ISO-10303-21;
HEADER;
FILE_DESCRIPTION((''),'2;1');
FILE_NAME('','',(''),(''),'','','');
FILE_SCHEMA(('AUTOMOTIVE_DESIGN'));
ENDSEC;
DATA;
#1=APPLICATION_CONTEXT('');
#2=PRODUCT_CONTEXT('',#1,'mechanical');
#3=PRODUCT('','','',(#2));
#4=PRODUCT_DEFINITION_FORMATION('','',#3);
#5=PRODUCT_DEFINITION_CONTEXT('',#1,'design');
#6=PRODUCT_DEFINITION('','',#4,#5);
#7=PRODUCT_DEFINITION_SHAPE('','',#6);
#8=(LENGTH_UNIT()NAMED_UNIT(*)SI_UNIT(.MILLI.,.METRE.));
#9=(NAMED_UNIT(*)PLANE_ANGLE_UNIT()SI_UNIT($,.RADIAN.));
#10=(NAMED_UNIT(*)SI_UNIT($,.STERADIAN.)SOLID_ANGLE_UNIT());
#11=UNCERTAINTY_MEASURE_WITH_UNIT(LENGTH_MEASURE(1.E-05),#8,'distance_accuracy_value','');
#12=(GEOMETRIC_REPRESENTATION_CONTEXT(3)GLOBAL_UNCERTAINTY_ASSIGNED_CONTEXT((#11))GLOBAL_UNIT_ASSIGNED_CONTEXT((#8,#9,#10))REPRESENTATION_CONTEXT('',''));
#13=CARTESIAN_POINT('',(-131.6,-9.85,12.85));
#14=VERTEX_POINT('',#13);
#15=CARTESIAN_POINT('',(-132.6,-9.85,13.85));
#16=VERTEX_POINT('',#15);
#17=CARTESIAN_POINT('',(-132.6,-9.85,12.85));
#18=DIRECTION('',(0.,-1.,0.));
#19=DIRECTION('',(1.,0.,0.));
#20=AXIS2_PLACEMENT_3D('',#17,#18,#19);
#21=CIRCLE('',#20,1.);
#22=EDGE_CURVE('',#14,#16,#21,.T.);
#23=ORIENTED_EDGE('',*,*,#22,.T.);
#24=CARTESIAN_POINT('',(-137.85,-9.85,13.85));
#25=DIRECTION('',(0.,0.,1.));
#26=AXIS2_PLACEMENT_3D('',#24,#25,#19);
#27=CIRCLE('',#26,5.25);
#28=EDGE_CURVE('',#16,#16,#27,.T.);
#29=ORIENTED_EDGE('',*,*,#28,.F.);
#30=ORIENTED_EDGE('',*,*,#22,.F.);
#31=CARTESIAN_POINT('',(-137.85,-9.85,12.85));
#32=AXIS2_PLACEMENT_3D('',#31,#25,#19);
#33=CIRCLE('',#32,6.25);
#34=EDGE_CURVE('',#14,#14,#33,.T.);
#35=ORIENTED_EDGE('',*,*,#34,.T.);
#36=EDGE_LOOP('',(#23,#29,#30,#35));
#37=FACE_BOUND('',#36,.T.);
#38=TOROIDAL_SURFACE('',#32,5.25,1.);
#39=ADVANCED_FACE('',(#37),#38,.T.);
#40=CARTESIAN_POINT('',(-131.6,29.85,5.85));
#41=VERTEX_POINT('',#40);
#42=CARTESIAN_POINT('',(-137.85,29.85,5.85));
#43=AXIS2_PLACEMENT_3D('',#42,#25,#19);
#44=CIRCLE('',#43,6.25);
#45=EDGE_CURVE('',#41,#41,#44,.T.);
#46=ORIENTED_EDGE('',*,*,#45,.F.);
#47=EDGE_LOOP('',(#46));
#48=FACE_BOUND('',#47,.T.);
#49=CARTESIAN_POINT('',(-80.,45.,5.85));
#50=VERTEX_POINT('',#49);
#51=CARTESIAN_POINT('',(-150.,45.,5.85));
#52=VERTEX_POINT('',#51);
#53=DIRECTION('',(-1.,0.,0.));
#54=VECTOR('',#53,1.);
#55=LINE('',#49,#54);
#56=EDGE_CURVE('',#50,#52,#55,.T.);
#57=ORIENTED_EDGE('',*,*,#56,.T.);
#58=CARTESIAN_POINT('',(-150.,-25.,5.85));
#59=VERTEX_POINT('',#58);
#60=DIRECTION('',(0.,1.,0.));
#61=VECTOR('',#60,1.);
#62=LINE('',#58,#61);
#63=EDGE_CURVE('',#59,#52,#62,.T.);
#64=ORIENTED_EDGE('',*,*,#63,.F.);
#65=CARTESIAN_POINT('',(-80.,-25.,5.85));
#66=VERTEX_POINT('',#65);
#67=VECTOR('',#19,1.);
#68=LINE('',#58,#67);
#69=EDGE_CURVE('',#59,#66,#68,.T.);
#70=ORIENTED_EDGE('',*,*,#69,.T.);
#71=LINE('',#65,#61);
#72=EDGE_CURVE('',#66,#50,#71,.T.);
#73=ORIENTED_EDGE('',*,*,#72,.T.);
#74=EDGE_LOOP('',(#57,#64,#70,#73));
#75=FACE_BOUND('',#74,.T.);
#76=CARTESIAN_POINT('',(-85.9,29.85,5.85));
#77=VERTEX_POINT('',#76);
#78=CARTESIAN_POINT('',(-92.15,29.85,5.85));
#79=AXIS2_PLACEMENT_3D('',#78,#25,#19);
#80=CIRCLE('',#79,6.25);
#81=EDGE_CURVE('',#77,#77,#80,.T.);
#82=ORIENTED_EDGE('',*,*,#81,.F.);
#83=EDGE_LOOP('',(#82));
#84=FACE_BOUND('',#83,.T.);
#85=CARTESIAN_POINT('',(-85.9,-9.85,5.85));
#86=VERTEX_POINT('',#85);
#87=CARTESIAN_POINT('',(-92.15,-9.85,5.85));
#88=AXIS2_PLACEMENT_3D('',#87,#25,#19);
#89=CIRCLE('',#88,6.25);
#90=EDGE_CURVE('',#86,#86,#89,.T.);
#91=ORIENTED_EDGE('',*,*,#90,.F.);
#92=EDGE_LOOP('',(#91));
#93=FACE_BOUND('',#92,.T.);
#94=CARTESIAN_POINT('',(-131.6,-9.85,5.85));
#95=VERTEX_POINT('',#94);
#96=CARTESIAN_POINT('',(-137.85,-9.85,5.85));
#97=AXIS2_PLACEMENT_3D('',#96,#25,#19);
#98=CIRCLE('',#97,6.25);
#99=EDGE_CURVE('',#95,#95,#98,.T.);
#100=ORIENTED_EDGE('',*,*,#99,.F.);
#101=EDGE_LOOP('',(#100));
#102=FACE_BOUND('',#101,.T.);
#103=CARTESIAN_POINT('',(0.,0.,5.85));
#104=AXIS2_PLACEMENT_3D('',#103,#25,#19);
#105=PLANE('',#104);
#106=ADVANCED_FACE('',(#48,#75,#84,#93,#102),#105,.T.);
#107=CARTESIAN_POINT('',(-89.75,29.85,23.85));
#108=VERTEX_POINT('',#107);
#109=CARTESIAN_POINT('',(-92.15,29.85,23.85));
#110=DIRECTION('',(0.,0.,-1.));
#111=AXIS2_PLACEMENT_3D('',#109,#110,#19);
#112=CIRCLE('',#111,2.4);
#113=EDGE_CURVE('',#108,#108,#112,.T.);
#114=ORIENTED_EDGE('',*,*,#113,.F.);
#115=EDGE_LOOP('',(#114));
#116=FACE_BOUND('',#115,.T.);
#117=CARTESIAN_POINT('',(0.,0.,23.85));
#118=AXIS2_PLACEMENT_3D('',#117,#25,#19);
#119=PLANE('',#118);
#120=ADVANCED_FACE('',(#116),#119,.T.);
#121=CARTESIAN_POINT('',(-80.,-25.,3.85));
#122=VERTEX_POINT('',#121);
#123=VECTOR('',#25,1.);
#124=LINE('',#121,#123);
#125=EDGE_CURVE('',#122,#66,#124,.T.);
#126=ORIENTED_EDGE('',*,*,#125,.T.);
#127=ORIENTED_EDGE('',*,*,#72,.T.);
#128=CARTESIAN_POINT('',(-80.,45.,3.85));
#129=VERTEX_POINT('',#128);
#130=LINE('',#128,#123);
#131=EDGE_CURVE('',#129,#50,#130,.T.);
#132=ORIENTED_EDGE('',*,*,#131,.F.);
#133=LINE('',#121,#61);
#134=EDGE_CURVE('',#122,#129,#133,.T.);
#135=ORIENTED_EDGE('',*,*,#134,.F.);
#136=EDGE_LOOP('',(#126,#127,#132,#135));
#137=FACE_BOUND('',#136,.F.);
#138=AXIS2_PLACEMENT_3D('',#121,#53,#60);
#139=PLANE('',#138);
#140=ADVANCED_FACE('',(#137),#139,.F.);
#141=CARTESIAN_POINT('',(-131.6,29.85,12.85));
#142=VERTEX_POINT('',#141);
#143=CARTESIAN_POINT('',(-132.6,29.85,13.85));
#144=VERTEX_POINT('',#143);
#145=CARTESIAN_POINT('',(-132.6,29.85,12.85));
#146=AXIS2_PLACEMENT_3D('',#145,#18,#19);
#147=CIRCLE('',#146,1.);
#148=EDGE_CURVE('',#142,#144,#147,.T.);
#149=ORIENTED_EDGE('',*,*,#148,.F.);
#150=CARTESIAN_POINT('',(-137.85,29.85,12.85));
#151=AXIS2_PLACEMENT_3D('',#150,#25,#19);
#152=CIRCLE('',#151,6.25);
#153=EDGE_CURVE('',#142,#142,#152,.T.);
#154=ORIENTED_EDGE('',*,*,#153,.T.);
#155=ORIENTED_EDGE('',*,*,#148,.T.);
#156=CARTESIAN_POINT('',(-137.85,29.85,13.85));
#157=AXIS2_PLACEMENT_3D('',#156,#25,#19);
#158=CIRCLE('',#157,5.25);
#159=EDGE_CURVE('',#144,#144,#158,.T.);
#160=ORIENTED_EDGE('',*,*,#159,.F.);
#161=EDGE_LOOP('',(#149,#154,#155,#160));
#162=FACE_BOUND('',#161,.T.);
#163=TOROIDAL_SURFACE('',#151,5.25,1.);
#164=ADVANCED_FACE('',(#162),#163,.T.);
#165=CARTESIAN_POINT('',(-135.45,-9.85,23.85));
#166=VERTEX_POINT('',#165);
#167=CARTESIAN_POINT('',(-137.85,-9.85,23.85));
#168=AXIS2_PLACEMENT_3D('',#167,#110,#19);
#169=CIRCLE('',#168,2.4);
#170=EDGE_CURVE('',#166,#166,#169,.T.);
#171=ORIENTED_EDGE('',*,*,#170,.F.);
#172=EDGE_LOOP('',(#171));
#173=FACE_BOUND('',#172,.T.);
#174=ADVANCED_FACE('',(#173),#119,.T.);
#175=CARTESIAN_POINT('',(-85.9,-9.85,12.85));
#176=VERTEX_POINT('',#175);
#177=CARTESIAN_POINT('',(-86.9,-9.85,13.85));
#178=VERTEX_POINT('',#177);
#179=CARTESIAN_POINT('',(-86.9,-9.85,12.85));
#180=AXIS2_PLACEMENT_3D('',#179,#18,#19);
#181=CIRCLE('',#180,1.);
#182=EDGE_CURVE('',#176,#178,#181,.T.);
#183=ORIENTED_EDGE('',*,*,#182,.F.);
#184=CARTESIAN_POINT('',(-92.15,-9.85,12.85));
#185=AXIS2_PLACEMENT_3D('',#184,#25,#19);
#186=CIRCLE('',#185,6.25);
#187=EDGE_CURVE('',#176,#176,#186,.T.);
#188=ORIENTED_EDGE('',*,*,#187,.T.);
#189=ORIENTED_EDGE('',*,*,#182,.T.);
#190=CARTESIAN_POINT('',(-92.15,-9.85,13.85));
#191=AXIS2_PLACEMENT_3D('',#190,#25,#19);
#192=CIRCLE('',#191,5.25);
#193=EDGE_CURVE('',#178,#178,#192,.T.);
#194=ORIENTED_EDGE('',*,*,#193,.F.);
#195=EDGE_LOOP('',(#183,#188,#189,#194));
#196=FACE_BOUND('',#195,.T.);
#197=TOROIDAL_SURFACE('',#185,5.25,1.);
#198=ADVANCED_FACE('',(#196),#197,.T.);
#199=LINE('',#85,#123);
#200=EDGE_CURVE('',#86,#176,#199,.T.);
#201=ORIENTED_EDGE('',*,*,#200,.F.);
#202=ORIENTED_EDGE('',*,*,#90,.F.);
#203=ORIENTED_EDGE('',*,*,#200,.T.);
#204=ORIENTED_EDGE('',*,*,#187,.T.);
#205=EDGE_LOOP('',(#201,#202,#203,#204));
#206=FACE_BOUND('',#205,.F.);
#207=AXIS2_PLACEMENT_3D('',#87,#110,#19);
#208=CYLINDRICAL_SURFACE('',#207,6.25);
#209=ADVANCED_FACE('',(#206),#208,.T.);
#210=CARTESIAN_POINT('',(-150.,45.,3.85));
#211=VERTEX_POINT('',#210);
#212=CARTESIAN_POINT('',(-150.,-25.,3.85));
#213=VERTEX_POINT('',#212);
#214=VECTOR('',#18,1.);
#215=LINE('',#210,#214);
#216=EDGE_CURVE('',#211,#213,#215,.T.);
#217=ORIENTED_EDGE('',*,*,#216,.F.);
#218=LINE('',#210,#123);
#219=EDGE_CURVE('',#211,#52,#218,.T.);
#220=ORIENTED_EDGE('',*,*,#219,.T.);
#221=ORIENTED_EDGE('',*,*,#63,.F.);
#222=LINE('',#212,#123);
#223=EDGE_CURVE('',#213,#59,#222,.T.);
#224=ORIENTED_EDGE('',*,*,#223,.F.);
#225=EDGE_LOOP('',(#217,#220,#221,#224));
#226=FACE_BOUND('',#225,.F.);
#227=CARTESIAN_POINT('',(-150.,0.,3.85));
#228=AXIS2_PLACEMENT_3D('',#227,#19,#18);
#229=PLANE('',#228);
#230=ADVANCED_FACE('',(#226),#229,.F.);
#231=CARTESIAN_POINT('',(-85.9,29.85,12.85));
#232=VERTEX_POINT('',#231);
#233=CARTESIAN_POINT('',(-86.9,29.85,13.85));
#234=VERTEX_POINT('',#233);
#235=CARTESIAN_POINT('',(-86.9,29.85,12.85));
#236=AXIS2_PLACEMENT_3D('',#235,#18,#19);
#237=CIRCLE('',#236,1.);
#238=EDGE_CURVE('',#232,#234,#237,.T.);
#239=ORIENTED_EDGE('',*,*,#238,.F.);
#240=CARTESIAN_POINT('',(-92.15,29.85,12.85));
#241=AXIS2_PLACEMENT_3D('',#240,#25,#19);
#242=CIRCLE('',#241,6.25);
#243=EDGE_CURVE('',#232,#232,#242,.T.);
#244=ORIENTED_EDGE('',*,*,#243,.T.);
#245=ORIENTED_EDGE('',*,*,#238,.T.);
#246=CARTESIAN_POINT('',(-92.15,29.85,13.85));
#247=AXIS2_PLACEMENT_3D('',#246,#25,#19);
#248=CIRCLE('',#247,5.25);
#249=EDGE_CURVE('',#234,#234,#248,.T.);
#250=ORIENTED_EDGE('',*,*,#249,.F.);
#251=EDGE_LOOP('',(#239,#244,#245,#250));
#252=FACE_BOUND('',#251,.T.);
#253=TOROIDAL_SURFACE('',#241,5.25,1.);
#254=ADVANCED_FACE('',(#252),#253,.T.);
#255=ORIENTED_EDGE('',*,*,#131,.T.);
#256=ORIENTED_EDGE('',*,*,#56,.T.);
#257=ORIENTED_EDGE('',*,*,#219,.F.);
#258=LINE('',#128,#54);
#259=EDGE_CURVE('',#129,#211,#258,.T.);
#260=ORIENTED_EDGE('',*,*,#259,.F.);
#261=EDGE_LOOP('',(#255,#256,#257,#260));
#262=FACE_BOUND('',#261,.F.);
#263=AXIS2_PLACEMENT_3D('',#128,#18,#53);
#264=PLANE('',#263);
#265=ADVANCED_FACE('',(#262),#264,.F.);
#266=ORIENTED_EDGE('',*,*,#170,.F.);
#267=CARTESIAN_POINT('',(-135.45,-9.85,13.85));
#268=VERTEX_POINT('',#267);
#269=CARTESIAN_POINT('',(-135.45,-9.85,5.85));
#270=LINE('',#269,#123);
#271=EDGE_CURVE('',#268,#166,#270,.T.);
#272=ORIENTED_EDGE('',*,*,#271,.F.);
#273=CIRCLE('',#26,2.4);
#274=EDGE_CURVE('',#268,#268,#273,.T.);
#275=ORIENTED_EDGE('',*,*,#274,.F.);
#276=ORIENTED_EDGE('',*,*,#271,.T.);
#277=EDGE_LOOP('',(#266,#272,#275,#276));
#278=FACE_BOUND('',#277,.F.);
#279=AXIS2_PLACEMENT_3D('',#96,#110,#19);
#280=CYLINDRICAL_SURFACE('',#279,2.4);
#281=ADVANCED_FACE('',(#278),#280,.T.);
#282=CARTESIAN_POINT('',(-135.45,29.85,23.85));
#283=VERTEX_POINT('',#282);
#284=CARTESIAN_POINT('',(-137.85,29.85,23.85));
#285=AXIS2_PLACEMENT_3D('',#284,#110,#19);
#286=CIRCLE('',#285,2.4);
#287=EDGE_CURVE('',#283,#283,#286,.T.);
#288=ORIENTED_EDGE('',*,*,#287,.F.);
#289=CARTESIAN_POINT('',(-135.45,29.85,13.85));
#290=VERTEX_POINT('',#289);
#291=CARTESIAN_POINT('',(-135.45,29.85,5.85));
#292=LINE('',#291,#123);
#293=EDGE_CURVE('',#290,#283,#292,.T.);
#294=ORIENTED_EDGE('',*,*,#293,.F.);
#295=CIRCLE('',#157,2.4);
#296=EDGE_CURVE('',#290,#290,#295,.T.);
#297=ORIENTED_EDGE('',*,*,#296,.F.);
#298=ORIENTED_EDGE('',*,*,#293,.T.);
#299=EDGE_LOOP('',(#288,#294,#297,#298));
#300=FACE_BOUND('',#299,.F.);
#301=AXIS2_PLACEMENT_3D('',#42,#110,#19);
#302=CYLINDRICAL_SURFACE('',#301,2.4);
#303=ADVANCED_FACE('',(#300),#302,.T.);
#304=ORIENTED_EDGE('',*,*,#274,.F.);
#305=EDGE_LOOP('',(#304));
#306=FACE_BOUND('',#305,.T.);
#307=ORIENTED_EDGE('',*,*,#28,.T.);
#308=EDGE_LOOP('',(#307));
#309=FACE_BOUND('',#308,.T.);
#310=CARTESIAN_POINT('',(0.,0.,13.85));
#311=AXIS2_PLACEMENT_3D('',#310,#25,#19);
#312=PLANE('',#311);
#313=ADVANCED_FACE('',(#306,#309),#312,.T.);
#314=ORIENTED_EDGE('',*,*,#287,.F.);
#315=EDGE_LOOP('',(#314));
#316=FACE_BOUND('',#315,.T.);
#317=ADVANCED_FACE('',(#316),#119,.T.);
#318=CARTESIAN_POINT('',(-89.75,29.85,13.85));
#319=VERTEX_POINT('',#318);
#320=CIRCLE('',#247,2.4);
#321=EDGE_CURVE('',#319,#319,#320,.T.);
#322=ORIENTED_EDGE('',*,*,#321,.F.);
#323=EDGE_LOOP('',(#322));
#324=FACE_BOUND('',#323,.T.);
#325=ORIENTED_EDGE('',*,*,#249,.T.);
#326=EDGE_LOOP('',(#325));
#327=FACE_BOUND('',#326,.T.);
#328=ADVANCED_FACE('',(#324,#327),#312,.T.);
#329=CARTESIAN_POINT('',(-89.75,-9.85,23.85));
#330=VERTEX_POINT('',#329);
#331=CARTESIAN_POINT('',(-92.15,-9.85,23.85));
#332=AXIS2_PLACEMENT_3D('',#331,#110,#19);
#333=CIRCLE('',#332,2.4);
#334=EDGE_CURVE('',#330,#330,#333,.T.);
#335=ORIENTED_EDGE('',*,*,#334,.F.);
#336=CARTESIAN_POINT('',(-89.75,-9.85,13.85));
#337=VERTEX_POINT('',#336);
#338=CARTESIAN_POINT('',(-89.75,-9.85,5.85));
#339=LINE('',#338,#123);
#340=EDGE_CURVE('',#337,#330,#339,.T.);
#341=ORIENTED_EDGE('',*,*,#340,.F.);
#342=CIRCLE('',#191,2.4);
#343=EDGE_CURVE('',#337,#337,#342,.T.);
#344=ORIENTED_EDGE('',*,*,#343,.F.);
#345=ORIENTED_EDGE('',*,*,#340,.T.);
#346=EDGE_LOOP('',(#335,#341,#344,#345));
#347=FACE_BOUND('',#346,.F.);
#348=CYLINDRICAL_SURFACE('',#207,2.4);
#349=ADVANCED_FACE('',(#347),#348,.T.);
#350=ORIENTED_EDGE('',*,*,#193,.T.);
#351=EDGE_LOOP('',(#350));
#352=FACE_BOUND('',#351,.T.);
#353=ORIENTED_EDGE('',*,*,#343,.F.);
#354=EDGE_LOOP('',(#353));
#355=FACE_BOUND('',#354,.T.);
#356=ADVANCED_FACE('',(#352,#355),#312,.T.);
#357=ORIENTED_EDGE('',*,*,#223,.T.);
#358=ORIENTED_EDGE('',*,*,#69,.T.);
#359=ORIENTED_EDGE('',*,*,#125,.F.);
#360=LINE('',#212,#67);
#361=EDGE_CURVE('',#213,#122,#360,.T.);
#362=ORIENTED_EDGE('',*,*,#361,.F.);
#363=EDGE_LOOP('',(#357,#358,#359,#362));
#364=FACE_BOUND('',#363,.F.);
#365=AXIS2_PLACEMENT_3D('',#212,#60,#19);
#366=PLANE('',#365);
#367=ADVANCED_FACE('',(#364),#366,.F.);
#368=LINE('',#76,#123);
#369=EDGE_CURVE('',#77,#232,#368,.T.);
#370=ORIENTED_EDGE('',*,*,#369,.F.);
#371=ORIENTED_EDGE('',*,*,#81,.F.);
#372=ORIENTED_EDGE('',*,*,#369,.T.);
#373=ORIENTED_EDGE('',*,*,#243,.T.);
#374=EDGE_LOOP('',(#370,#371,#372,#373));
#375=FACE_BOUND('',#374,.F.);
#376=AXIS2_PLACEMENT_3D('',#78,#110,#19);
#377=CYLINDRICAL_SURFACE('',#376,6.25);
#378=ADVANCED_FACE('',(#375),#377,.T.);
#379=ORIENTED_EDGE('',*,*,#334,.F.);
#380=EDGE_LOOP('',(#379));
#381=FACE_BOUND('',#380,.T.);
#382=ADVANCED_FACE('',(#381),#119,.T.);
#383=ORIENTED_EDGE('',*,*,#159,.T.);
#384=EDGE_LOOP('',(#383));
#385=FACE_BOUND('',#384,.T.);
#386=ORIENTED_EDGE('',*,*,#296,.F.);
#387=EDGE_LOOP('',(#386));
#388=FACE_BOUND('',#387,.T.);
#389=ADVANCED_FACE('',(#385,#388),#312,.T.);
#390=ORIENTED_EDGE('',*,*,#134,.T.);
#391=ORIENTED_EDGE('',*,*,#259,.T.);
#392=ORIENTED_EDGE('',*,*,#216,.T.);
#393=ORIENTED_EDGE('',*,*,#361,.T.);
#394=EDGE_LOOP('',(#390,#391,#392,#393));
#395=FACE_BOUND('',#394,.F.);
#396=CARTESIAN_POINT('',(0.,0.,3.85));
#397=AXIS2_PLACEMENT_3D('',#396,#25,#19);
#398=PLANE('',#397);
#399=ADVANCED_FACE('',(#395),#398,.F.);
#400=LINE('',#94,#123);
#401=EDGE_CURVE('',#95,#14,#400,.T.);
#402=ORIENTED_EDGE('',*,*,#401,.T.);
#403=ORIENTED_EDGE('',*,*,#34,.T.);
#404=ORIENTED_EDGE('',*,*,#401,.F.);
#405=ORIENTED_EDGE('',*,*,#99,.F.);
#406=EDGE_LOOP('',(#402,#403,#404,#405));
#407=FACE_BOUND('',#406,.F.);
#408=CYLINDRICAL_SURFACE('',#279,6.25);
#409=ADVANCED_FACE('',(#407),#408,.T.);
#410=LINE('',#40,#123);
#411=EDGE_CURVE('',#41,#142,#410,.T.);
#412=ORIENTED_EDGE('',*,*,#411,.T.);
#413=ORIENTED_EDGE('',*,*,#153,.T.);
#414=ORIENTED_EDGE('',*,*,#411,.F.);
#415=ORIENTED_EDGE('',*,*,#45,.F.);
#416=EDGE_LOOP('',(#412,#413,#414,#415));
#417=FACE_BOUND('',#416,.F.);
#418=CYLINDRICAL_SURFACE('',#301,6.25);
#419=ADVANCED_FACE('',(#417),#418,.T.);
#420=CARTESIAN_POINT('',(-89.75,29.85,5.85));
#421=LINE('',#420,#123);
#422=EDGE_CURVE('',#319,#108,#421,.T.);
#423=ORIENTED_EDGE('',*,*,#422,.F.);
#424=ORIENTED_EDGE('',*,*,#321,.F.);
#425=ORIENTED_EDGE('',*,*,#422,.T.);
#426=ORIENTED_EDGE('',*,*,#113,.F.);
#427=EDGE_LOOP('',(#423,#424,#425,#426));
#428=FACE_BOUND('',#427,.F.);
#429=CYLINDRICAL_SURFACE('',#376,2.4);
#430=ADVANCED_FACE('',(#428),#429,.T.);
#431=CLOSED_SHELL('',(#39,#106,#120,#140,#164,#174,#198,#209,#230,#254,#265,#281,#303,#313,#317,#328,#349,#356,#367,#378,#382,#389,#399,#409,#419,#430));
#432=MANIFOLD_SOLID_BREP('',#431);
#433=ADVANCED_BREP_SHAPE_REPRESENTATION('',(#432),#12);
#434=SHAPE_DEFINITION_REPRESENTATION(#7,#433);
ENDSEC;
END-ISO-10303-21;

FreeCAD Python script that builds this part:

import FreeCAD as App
import Part
import Sketcher

V = App.Vector


def edges_at(feature, points):
    """Names of the edges that pass closest to the given points."""
    edges = feature.Shape.Edges
    near = lambda p: min(range(len(edges)), key=lambda i: edges[i].distToShape(Part.Vertex(*p))[0])
    return sorted({f"Edge{near(p) + 1}" for p in points})


def add_polygon(sketch, points):
    """Adds a closed chain of lines whose ends are joined by coincident constraints."""
    first, n = sketch.GeometryCount, len(points)
    for a, b in zip(points, points[1:] + points[:1]):
        sketch.addGeometry(Part.LineSegment(App.Vector(*a, 0), App.Vector(*b, 0)), False)
    for i in range(n):
        sketch.addConstraint(Sketcher.Constraint("Coincident", first + i, 2, first + (i + 1) % n, 1))

doc = App.newDocument("Part")
body = doc.addObject("PartDesign::Body", "Body")

# Sketch on XY plane
sketch1 = body.newObject("Sketcher::SketchObject", "Sketch")
sketch1.AttachmentSupport = (doc.getObject("XY_Plane"), [""])
sketch1.MapMode = "FlatFace"
sketch1.AttachmentOffset = App.Placement(V(0, 0, 3.85), App.Rotation())
add_polygon(sketch1, [(-150, 45), (-150, -25), (-80, -25), (-80, 45)])  # lines 0-3
sketch1.addConstraint([
    Sketcher.Constraint("Vertical", 0),
    Sketcher.Constraint("Horizontal", 1),
    Sketcher.Constraint("Vertical", 2),
    Sketcher.Constraint("Horizontal", 3),
    Sketcher.Constraint("Equal", 3, 0),
    Sketcher.Constraint("DistanceX", 1, 1, 1, 2, 70.0),
    Sketcher.Constraint("DistanceX", 0, 2, -1, 1, 150.0),
    Sketcher.Constraint("DistanceY", 0, 2, -1, 1, 25.0),
])
pad1 = body.newObject("PartDesign::Pad", "Pad")
pad1.Profile = sketch1
pad1.Length = 2

# Sketch on XY plane
sketch2 = body.newObject("Sketcher::SketchObject", "Sketch001")
sketch2.AttachmentSupport = (doc.getObject("XY_Plane"), [""])
sketch2.MapMode = "FlatFace"
sketch2.AttachmentOffset = App.Placement(V(0, 0, 5.85), App.Rotation())
sketch2.addGeometry([
    Part.Circle(V(-137.8, -9.8, 0), V(0, 0, 1), 2.4),
    Part.Circle(V(-137.8, 29.9, 0), V(0, 0, 1), 2.4),
    Part.Circle(V(-92.2, -9.8, 0), V(0, 0, 1), 2.4),
    Part.Circle(V(-92.2, 29.9, 0), V(0, 0, 1), 2.4),
], False)
sketch2.addConstraint([
    Sketcher.Constraint("Equal", 0, 1),
    Sketcher.Constraint("Equal", 1, 2),
    Sketcher.Constraint("Equal", 2, 3),
    Sketcher.Constraint("Horizontal", 0, 3, 2, 3),
    Sketcher.Constraint("Horizontal", 1, 3, 3, 3),
    Sketcher.Constraint("Vertical", 0, 3, 1, 3),
    Sketcher.Constraint("Vertical", 2, 3, 3, 3),
    Sketcher.Constraint("Diameter", 0, 4.8),
    Sketcher.Constraint("DistanceY", 0, 3, 1, 3, 39.7),
    Sketcher.Constraint("DistanceX", 0, 3, 2, 3, 45.7),
    Sketcher.Constraint("DistanceX", 0, 3, -1, 1, 137.85),
    Sketcher.Constraint("DistanceY", 0, 3, -1, 1, 9.85),
])
pad2 = body.newObject("PartDesign::Pad", "Pad001")
pad2.Profile = sketch2
pad2.Length = 18

# Sketch on XY plane
sketch3 = body.newObject("Sketcher::SketchObject", "Sketch002")
sketch3.AttachmentSupport = (doc.getObject("XY_Plane"), [""])
sketch3.MapMode = "FlatFace"
sketch3.AttachmentOffset = App.Placement(V(0, 0, 5.85), App.Rotation())
sketch3.addGeometry([
    Part.Circle(V(-137.8, -9.8, 0), V(0, 0, 1), 6.2),  # 0
    Part.Circle(V(-137.8, -9.8, 0), V(0, 0, 1), 2.4),  # 1
    Part.Circle(V(-137.8, 29.9, 0), V(0, 0, 1), 6.2),  # 2
    Part.Circle(V(-137.8, 29.9, 0), V(0, 0, 1), 2.4),  # 3
    Part.Circle(V(-92.2, -9.8, 0), V(0, 0, 1), 6.2),  # 4
    Part.Circle(V(-92.2, -9.8, 0), V(0, 0, 1), 2.4),  # 5
    Part.Circle(V(-92.2, 29.9, 0), V(0, 0, 1), 6.2),  # 6
    Part.Circle(V(-92.2, 29.9, 0), V(0, 0, 1), 2.4),  # 7
], False)
sketch3.addConstraint([
    Sketcher.Constraint("Coincident", 1, 3, 0, 3),
    Sketcher.Constraint("Coincident", 3, 3, 2, 3),
    Sketcher.Constraint("Coincident", 5, 3, 4, 3),
    Sketcher.Constraint("Coincident", 7, 3, 6, 3),
    Sketcher.Constraint("Equal", 0, 2),
    Sketcher.Constraint("Equal", 1, 3),
    Sketcher.Constraint("Equal", 2, 4),
    Sketcher.Constraint("Equal", 3, 5),
    Sketcher.Constraint("Equal", 4, 6),
    Sketcher.Constraint("Equal", 5, 7),
    Sketcher.Constraint("Horizontal", 1, 3, 4, 3),
    Sketcher.Constraint("Horizontal", 3, 3, 6, 3),
    Sketcher.Constraint("Vertical", 1, 3, 2, 3),
    Sketcher.Constraint("Vertical", 5, 3, 6, 3),
    Sketcher.Constraint("Diameter", 0, 12.5),
    Sketcher.Constraint("Diameter", 1, 4.8),
    Sketcher.Constraint("DistanceY", 0, 3, 2, 3, 39.7),
    Sketcher.Constraint("DistanceX", 0, 3, 4, 3, 45.7),
    Sketcher.Constraint("DistanceX", 0, 3, -1, 1, 137.85),
    Sketcher.Constraint("DistanceY", 0, 3, -1, 1, 9.85),
])
pad3 = body.newObject("PartDesign::Pad", "Pad002")
pad3.Profile = sketch3
pad3.Length = 8
doc.recompute()

fillet = body.newObject("PartDesign::Fillet", "Fillet")
fillet.Base = (pad3, edges_at(pad3, [
    (-144.1, -9.85, 13.85),
    (-98.4, -9.85, 13.85),
    (-98.4, 29.85, 13.85),
    (-144.1, 29.85, 13.85),
]))
fillet.Radius = 1

doc.recompute()
